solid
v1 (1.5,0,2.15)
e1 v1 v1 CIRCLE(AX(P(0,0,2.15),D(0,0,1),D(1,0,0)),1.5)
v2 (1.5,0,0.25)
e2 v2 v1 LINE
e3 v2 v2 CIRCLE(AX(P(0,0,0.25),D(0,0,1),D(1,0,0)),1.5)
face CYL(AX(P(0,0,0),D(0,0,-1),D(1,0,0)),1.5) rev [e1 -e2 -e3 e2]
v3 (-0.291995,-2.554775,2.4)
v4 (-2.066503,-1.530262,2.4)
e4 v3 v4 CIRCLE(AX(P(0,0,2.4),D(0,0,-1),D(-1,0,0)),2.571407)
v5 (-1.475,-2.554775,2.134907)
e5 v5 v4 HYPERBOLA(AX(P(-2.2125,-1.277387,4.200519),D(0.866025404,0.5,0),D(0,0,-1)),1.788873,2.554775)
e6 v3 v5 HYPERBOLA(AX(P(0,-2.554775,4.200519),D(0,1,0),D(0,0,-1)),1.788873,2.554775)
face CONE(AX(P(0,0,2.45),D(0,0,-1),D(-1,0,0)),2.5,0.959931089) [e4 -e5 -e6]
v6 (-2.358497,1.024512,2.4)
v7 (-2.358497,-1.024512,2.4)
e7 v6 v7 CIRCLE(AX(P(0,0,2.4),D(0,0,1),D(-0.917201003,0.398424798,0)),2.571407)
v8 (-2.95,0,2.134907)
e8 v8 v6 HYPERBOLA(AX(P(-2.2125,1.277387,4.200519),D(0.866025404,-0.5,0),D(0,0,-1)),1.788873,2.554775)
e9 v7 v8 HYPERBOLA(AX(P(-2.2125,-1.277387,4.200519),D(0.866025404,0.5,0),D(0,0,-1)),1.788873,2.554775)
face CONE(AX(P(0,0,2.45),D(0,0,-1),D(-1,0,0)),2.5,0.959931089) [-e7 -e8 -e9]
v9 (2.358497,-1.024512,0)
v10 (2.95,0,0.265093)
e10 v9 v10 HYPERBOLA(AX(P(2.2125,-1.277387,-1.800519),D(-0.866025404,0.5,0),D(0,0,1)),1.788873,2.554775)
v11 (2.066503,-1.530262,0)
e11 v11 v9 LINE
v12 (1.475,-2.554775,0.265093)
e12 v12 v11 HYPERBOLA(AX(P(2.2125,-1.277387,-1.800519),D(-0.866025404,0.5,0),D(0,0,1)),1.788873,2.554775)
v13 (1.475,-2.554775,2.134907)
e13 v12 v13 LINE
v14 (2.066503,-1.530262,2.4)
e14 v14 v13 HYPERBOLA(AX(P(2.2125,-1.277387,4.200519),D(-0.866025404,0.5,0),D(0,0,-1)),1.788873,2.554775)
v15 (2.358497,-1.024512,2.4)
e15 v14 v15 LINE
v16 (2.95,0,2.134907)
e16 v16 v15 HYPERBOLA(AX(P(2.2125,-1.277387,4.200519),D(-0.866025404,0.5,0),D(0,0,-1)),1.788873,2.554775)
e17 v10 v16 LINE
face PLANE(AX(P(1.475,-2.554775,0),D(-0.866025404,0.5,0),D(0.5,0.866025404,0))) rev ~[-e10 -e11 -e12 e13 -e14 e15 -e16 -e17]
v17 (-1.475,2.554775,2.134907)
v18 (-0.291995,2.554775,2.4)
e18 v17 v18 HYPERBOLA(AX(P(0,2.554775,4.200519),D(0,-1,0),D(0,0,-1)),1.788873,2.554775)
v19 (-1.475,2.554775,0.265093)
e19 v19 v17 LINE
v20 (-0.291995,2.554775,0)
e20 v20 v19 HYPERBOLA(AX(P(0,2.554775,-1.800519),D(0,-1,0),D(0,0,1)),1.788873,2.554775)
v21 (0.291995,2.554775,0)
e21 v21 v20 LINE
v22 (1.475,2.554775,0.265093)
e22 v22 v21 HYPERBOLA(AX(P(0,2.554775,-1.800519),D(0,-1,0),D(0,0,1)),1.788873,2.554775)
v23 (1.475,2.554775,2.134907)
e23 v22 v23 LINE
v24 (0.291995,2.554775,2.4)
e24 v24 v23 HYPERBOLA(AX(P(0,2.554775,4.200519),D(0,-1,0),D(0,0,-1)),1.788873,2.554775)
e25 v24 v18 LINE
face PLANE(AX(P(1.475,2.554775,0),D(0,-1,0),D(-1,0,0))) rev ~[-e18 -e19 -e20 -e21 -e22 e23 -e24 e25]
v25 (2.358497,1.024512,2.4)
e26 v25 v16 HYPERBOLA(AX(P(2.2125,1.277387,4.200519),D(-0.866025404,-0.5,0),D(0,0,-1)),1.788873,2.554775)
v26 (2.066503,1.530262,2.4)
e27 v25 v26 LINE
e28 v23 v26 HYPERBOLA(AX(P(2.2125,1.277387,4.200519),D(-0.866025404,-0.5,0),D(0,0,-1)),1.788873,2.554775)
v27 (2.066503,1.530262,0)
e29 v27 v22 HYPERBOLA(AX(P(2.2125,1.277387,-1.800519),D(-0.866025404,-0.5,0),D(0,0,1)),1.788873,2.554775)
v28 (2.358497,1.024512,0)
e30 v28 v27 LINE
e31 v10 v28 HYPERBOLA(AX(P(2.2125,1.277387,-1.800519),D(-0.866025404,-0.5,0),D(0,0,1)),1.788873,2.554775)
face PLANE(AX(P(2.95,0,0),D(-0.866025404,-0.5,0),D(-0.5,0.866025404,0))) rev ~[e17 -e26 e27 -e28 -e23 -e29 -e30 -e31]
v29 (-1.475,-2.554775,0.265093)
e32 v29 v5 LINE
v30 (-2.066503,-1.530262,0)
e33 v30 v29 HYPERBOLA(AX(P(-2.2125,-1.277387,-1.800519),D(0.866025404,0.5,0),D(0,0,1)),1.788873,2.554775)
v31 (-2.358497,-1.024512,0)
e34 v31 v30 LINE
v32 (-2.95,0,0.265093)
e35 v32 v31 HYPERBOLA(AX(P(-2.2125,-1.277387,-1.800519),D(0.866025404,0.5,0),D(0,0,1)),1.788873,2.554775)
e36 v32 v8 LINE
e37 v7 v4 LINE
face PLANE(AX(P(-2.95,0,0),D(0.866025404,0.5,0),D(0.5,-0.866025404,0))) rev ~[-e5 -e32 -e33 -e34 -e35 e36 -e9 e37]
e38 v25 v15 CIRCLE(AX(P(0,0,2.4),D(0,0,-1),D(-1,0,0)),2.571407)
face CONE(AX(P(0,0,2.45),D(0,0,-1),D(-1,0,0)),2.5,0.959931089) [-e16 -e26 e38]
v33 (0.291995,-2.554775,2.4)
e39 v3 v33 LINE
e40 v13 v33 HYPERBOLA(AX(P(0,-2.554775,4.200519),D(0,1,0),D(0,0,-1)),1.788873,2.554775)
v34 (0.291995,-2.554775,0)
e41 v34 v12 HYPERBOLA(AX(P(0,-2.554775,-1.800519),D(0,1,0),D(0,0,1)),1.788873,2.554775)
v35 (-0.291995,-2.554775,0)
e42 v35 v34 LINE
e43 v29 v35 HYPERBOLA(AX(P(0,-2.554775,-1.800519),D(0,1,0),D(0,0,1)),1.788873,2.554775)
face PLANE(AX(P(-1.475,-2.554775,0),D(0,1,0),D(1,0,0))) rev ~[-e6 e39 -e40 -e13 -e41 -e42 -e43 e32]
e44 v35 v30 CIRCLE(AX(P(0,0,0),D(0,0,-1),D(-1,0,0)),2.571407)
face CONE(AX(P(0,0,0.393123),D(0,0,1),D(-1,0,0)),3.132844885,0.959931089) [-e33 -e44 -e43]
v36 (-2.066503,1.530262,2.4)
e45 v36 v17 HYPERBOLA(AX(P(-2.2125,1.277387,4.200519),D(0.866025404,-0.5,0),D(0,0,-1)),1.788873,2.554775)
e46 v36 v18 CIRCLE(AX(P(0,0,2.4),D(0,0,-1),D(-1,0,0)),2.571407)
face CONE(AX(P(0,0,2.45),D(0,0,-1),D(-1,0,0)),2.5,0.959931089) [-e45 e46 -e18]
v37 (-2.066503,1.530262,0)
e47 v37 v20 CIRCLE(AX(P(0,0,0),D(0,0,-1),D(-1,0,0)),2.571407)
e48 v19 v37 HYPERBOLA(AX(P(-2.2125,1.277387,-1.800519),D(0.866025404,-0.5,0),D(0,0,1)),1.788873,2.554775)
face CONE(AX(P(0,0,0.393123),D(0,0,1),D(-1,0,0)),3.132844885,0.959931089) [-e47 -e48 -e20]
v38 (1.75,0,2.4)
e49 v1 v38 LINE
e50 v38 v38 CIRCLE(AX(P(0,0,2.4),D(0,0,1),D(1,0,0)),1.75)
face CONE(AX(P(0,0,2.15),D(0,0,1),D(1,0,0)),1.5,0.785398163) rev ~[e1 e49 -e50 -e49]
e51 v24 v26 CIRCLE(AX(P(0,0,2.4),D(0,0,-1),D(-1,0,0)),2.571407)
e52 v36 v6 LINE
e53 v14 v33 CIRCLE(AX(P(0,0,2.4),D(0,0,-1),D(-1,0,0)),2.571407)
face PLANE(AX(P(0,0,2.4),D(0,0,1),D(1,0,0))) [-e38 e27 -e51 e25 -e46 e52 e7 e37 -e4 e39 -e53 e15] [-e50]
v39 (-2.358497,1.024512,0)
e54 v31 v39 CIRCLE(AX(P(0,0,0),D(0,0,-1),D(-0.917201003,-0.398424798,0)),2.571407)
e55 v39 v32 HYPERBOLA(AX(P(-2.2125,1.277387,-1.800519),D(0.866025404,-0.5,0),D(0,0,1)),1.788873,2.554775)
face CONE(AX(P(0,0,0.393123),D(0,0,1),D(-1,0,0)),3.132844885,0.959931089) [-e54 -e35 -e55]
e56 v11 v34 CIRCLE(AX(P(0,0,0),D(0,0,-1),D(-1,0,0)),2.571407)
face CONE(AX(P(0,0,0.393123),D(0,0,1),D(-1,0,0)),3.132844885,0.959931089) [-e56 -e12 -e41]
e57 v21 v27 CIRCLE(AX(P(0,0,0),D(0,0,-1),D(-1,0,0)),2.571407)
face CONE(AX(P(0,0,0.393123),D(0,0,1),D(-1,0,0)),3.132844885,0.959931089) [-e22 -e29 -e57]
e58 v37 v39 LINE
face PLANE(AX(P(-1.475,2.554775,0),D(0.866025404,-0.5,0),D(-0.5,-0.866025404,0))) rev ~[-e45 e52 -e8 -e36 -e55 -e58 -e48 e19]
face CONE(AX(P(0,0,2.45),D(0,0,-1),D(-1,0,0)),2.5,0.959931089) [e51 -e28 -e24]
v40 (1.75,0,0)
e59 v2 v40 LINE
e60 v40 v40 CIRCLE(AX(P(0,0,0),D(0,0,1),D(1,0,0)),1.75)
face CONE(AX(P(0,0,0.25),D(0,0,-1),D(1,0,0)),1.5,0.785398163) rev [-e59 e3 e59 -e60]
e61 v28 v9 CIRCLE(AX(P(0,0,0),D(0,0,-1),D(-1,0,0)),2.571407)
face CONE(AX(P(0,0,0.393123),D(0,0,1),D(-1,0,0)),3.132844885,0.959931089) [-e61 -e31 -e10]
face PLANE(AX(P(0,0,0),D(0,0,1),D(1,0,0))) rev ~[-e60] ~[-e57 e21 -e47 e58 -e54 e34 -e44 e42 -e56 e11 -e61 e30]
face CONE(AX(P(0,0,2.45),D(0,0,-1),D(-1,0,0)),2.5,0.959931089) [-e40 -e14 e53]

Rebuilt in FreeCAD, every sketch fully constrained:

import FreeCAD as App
import Part
import Sketcher

V = App.Vector
Q = App.Units.Quantity


def edges_at(feature, points):
    """Names of the edges that pass closest to the given points."""
    edges = feature.Shape.Edges
    near = lambda p: min(range(len(edges)), key=lambda i: edges[i].distToShape(Part.Vertex(*p))[0])
    return sorted({f"Edge{near(p) + 1}" for p in points})

doc = App.newDocument("Part")
body = doc.addObject("PartDesign::Body", "Body")

sketch1 = body.newObject("Sketcher::SketchObject", "Sketch")
sketch1.AttachmentSupport = (doc.getObject("XY_Plane"), [""])
sketch1.MapMode = "FlatFace"
sketch1.addGeometry(Part.LineSegment(V(3, 0, 0), V(1.5, 2.6, 0)), False)
sketch1.addGeometry(Part.LineSegment(V(1.5, 2.6, 0), V(-1.5, 2.6, 0)), False)
sketch1.addGeometry(Part.LineSegment(V(-1.5, 2.6, 0), V(-3, 0, 0)), False)
sketch1.addGeometry(Part.LineSegment(V(-3, 0, 0), V(-1.5, -2.6, 0)), False)
sketch1.addGeometry(Part.LineSegment(V(-1.5, -2.6, 0), V(1.5, -2.6, 0)), False)
sketch1.addGeometry(Part.LineSegment(V(1.5, -2.6, 0), V(3, 0, 0)), False)
sketch1.addGeometry(Part.Circle(V(0, 0, 0), V(0, 0, 1), 1.5), False)
sketch1.addConstraint(Sketcher.Constraint("Coincident", 0, 2, 1, 1))
sketch1.addConstraint(Sketcher.Constraint("Coincident", 1, 2, 2, 1))
sketch1.addConstraint(Sketcher.Constraint("Coincident", 2, 2, 3, 1))
sketch1.addConstraint(Sketcher.Constraint("Coincident", 3, 2, 4, 1))
sketch1.addConstraint(Sketcher.Constraint("Coincident", 4, 2, 5, 1))
sketch1.addConstraint(Sketcher.Constraint("Coincident", 5, 2, 0, 1))
sketch1.addConstraint(Sketcher.Constraint("Horizontal", 1))
sketch1.addConstraint(Sketcher.Constraint("Horizontal", 4))
sketch1.addConstraint(Sketcher.Constraint("Coincident", 6, 3, -1, 1))
sketch1.addConstraint(Sketcher.Constraint("Symmetric", 0, 2, 3, 2, -1, 1))
sketch1.addConstraint(Sketcher.Constraint("Symmetric", 2, 2, 5, 2, -1, 1))
sketch1.addConstraint(Sketcher.Constraint("PointOnObject", 2, 2, -1))
sketch1.addConstraint(Sketcher.Constraint("Parallel", 2, 5))
sketch1.addConstraint(Sketcher.Constraint("Vertical", 1, 2, 3, 2))
sketch1.addConstraint(Sketcher.Constraint("Diameter", 6, 3.0))
sketch1.addConstraint(Sketcher.Constraint("Angle", 0, Q("120 deg")))
sketch1.addConstraint(Sketcher.Constraint("DistanceX", 1, 2, 1, 1, 2.95))
sketch1.addConstraint(Sketcher.Constraint("Distance", 0, 2.95))
pad1 = body.newObject("PartDesign::Pad", "Pad")
pad1.Profile = sketch1
pad1.Length = 2.4
doc.recompute()

chamfer = body.newObject("PartDesign::Chamfer", "Chamfer")
chamfer.Base = (pad1, edges_at(pad1, [(-1.5, 0, 0), (-1.5, 0, 2.4)]))
chamfer.Size = 0.25

sketch2 = body.newObject("Sketcher::SketchObject", "Sketch001")
sketch2.AttachmentSupport = (doc.getObject("XZ_Plane"), [""])
sketch2.MapMode = "FlatFace"
sketch2.addGeometry(Part.LineSegment(V(-1, 2.5, 0), V(-2.5, 2.5, 0)), False)
sketch2.addGeometry(Part.LineSegment(V(-2.5, 2.5, 0), V(-3.1, 2, 0)), False)
sketch2.addGeometry(Part.LineSegment(V(-3.1, 2, 0), V(-3.1, 0.4, 0)), False)
sketch2.addGeometry(Part.LineSegment(V(-3.1, 0.4, 0), V(-2.5, -0.1, 0)), False)
sketch2.addGeometry(Part.LineSegment(V(-2.5, -0.1, 0), V(-1, -0.1, 0)), False)
sketch2.addGeometry(Part.LineSegment(V(-1, -0.1, 0), V(-1, -2, 0)), False)
sketch2.addGeometry(Part.LineSegment(V(-1, -2, 0), V(-7.8, -2, 0)), False)
sketch2.addGeometry(Part.LineSegment(V(-7.8, -2, 0), V(-7.8, 7, 0)), False)
sketch2.addGeometry(Part.LineSegment(V(-7.8, 7, 0), V(-1, 7, 0)), False)
sketch2.addGeometry(Part.LineSegment(V(-1, 7, 0), V(-1, 2.5, 0)), False)
sketch2.addConstraint(Sketcher.Constraint("Coincident", 0, 2, 1, 1))
sketch2.addConstraint(Sketcher.Constraint("Coincident", 1, 2, 2, 1))
sketch2.addConstraint(Sketcher.Constraint("Coincident", 2, 2, 3, 1))
sketch2.addConstraint(Sketcher.Constraint("Coincident", 3, 2, 4, 1))
sketch2.addConstraint(Sketcher.Constraint("Coincident", 4, 2, 5, 1))
sketch2.addConstraint(Sketcher.Constraint("Coincident", 5, 2, 6, 1))
sketch2.addConstraint(Sketcher.Constraint("Coincident", 6, 2, 7, 1))
sketch2.addConstraint(Sketcher.Constraint("Coincident", 7, 2, 8, 1))
sketch2.addConstraint(Sketcher.Constraint("Coincident", 8, 2, 9, 1))
sketch2.addConstraint(Sketcher.Constraint("Coincident", 9, 2, 0, 1))
sketch2.addConstraint(Sketcher.Constraint("Horizontal", 0))
sketch2.addConstraint(Sketcher.Constraint("Vertical", 2))
sketch2.addConstraint(Sketcher.Constraint("Horizontal", 4))
sketch2.addConstraint(Sketcher.Constraint("Vertical", 5))
sketch2.addConstraint(Sketcher.Constraint("Horizontal", 6))
sketch2.addConstraint(Sketcher.Constraint("Vertical", 7))
sketch2.addConstraint(Sketcher.Constraint("Horizontal", 8))
sketch2.addConstraint(Sketcher.Constraint("Vertical", 9))
sketch2.addConstraint(Sketcher.Constraint("Vertical", 0, 2, 3, 2))
sketch2.addConstraint(Sketcher.Constraint("Vertical", 5, 2, 8, 2))
sketch2.addConstraint(Sketcher.Constraint("Equal", 1, 3))
sketch2.addConstraint(Sketcher.Constraint("Angle", 1, Q("-145 deg")))
sketch2.addConstraint(Sketcher.Constraint("DistanceX", 0, 2, 0, 1, 1.5))
sketch2.addConstraint(Sketcher.Constraint("DistanceX", 4, 2, -1, 1, 1.0))
sketch2.addConstraint(Sketcher.Constraint("DistanceY", 3, 2, 0, 2, 2.5))
sketch2.addConstraint(Sketcher.Constraint("DistanceY", -1, 1, 0, 2, 2.45))
sketch2.addConstraint(Sketcher.Constraint("DistanceX", 6, 2, 6, 1, 6.7509))
sketch2.addConstraint(Sketcher.Constraint("DistanceY", 7, 1, 7, 2, 8.964201))
sketch2.addConstraint(Sketcher.Constraint("DistanceY", 5, 2, 5, 1, 1.931328))
sketch2.addConstraint(Sketcher.Constraint("Distance", 1, 0.772561))
groove = body.newObject("PartDesign::Groove", "Groove")
groove.Profile = sketch2
groove.ReferenceAxis = (sketch2, ["V_Axis"])
groove.Angle = 360

doc.recompute()
